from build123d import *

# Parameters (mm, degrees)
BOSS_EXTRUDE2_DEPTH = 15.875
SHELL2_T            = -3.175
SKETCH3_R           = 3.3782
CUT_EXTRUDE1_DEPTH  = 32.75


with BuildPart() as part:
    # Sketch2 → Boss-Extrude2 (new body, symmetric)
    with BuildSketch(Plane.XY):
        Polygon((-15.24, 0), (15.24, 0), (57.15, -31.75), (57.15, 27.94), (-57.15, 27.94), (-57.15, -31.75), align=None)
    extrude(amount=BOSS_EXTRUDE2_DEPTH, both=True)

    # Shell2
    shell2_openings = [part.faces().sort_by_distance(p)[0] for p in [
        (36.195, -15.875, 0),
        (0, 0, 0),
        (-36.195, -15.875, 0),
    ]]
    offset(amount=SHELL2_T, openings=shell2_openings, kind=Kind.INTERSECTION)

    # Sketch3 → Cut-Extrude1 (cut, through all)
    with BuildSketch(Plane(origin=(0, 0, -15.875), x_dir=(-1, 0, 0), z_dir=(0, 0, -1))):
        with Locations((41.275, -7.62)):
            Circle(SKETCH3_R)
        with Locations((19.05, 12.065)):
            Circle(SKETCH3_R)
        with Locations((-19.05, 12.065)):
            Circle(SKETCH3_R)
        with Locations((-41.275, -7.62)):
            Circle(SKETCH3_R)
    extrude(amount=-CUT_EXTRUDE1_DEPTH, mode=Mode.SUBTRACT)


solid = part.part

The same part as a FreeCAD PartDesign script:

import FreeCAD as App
import Part
import Sketcher

V = App.Vector
Q = App.Units.Quantity


def faces_at(feature, points):
    """Names of the faces that lie closest to the given points."""
    faces = feature.Shape.Faces
    near = lambda p: min(range(len(faces)), key=lambda i: faces[i].distToShape(Part.Vertex(*p))[0])
    return sorted({f"Face{near(p) + 1}" for p in points})


def add_polygon(sketch, points):
    """Adds a closed chain of lines whose ends are joined by coincident constraints."""
    first, n = sketch.GeometryCount, len(points)
    for a, b in zip(points, points[1:] + points[:1]):
        sketch.addGeometry(Part.LineSegment(App.Vector(*a, 0), App.Vector(*b, 0)), False)
    for i in range(n):
        sketch.addConstraint(Sketcher.Constraint("Coincident", first + i, 2, first + (i + 1) % n, 1))

doc = App.newDocument("Part")
body = doc.addObject("PartDesign::Body", "Body")

# Sketch on XY plane
sketch1 = body.newObject("Sketcher::SketchObject", "Sketch")
sketch1.AttachmentSupport = (doc.getObject("XY_Plane"), [""])
sketch1.MapMode = "FlatFace"
add_polygon(sketch1, [(-15, 0), (15, 0), (57, -32), (57, 28), (-57, 28), (-57, -32)])  # lines 0-5
sketch1.addConstraint(Sketcher.Constraint("Horizontal", 0))
sketch1.addConstraint(Sketcher.Constraint("Vertical", 2))
sketch1.addConstraint(Sketcher.Constraint("Horizontal", 3))
sketch1.addConstraint(Sketcher.Constraint("Vertical", 4))
sketch1.addConstraint(Sketcher.Constraint("Symmetric", 0, 2, 5, 2, -1, 1))
sketch1.addConstraint(Sketcher.Constraint("Symmetric", 1, 2, 4, 2, -2))
sketch1.addConstraint(Sketcher.Constraint("DistanceX", 0, 1, 0, 2, Q("1.2 in")))
sketch1.addConstraint(Sketcher.Constraint("DistanceX", 3, 2, 3, 1, Q("4.5 in")))
sketch1.addConstraint(Sketcher.Constraint("DistanceY", 2, 1, 2, 2, Q("2.35 in")))
sketch1.addConstraint(Sketcher.Constraint("DistanceY", -1, 1, 2, 2, Q("1.1 in")))
pad1 = body.newObject("PartDesign::Pad", "Pad")
pad1.Profile = sketch1
pad1.Length = Q("1.25 in")
pad1.Midplane = True
doc.recompute()

thickness = body.newObject("PartDesign::Thickness", "Thickness")
thickness.Base = (pad1, faces_at(pad1, [(36.195, -15.875, 0), (0, 0, 0), (-36.195, -15.875, 0)]))
thickness.Value = Q("0.125 in")
thickness.Reversed = True
thickness.Join = "Intersection"

# Sketch on XY plane
sketch2 = body.newObject("Sketcher::SketchObject", "Sketch001")
sketch2.AttachmentSupport = (doc.getObject("XY_Plane"), [""])
sketch2.MapMode = "FlatFace"
sketch2.AttachmentOffset = App.Placement(V(0, 0, -0.625 * 25.4), App.Rotation())
sketch2.addGeometry(Part.Circle(V(-41.3, -7.6, 0), V(0, 0, 1), 3.4), False)
sketch2.addGeometry(Part.Circle(V(-19.1, 12.1, 0), V(0, 0, 1), 3.4), False)
sketch2.addGeometry(Part.Circle(V(19.1, 12.1, 0), V(0, 0, 1), 3.4), False)
sketch2.addGeometry(Part.Circle(V(41.3, -7.6, 0), V(0, 0, 1), 3.4), False)
sketch2.addConstraint(Sketcher.Constraint("Equal", 0, 1))
sketch2.addConstraint(Sketcher.Constraint("Equal", 1, 2))
sketch2.addConstraint(Sketcher.Constraint("Equal", 2, 3))
sketch2.addConstraint(Sketcher.Constraint("Symmetric", 1, 3, 2, 3, -2))
sketch2.addConstraint(Sketcher.Constraint("Symmetric", 0, 3, 3, 3, -2))
sketch2.addConstraint(Sketcher.Constraint("Diameter", 0, Q("0.266 in")))
sketch2.addConstraint(Sketcher.Constraint("DistanceY", 0, 3, -1, 1, Q("0.3 in")))
sketch2.addConstraint(Sketcher.Constraint("DistanceX", 1, 3, 2, 3, Q("1.5 in")))
sketch2.addConstraint(Sketcher.Constraint("DistanceX", 0, 3, 3, 3, Q("3.25 in")))
sketch2.addConstraint(Sketcher.Constraint("DistanceY", -1, 1, 1, 3, Q("0.475 in")))
pocket1 = body.newObject("PartDesign::Pocket", "Pocket")
pocket1.Profile = sketch2
pocket1.Type = "ThroughAll"
pocket1.Reversed = True

doc.recompute()
